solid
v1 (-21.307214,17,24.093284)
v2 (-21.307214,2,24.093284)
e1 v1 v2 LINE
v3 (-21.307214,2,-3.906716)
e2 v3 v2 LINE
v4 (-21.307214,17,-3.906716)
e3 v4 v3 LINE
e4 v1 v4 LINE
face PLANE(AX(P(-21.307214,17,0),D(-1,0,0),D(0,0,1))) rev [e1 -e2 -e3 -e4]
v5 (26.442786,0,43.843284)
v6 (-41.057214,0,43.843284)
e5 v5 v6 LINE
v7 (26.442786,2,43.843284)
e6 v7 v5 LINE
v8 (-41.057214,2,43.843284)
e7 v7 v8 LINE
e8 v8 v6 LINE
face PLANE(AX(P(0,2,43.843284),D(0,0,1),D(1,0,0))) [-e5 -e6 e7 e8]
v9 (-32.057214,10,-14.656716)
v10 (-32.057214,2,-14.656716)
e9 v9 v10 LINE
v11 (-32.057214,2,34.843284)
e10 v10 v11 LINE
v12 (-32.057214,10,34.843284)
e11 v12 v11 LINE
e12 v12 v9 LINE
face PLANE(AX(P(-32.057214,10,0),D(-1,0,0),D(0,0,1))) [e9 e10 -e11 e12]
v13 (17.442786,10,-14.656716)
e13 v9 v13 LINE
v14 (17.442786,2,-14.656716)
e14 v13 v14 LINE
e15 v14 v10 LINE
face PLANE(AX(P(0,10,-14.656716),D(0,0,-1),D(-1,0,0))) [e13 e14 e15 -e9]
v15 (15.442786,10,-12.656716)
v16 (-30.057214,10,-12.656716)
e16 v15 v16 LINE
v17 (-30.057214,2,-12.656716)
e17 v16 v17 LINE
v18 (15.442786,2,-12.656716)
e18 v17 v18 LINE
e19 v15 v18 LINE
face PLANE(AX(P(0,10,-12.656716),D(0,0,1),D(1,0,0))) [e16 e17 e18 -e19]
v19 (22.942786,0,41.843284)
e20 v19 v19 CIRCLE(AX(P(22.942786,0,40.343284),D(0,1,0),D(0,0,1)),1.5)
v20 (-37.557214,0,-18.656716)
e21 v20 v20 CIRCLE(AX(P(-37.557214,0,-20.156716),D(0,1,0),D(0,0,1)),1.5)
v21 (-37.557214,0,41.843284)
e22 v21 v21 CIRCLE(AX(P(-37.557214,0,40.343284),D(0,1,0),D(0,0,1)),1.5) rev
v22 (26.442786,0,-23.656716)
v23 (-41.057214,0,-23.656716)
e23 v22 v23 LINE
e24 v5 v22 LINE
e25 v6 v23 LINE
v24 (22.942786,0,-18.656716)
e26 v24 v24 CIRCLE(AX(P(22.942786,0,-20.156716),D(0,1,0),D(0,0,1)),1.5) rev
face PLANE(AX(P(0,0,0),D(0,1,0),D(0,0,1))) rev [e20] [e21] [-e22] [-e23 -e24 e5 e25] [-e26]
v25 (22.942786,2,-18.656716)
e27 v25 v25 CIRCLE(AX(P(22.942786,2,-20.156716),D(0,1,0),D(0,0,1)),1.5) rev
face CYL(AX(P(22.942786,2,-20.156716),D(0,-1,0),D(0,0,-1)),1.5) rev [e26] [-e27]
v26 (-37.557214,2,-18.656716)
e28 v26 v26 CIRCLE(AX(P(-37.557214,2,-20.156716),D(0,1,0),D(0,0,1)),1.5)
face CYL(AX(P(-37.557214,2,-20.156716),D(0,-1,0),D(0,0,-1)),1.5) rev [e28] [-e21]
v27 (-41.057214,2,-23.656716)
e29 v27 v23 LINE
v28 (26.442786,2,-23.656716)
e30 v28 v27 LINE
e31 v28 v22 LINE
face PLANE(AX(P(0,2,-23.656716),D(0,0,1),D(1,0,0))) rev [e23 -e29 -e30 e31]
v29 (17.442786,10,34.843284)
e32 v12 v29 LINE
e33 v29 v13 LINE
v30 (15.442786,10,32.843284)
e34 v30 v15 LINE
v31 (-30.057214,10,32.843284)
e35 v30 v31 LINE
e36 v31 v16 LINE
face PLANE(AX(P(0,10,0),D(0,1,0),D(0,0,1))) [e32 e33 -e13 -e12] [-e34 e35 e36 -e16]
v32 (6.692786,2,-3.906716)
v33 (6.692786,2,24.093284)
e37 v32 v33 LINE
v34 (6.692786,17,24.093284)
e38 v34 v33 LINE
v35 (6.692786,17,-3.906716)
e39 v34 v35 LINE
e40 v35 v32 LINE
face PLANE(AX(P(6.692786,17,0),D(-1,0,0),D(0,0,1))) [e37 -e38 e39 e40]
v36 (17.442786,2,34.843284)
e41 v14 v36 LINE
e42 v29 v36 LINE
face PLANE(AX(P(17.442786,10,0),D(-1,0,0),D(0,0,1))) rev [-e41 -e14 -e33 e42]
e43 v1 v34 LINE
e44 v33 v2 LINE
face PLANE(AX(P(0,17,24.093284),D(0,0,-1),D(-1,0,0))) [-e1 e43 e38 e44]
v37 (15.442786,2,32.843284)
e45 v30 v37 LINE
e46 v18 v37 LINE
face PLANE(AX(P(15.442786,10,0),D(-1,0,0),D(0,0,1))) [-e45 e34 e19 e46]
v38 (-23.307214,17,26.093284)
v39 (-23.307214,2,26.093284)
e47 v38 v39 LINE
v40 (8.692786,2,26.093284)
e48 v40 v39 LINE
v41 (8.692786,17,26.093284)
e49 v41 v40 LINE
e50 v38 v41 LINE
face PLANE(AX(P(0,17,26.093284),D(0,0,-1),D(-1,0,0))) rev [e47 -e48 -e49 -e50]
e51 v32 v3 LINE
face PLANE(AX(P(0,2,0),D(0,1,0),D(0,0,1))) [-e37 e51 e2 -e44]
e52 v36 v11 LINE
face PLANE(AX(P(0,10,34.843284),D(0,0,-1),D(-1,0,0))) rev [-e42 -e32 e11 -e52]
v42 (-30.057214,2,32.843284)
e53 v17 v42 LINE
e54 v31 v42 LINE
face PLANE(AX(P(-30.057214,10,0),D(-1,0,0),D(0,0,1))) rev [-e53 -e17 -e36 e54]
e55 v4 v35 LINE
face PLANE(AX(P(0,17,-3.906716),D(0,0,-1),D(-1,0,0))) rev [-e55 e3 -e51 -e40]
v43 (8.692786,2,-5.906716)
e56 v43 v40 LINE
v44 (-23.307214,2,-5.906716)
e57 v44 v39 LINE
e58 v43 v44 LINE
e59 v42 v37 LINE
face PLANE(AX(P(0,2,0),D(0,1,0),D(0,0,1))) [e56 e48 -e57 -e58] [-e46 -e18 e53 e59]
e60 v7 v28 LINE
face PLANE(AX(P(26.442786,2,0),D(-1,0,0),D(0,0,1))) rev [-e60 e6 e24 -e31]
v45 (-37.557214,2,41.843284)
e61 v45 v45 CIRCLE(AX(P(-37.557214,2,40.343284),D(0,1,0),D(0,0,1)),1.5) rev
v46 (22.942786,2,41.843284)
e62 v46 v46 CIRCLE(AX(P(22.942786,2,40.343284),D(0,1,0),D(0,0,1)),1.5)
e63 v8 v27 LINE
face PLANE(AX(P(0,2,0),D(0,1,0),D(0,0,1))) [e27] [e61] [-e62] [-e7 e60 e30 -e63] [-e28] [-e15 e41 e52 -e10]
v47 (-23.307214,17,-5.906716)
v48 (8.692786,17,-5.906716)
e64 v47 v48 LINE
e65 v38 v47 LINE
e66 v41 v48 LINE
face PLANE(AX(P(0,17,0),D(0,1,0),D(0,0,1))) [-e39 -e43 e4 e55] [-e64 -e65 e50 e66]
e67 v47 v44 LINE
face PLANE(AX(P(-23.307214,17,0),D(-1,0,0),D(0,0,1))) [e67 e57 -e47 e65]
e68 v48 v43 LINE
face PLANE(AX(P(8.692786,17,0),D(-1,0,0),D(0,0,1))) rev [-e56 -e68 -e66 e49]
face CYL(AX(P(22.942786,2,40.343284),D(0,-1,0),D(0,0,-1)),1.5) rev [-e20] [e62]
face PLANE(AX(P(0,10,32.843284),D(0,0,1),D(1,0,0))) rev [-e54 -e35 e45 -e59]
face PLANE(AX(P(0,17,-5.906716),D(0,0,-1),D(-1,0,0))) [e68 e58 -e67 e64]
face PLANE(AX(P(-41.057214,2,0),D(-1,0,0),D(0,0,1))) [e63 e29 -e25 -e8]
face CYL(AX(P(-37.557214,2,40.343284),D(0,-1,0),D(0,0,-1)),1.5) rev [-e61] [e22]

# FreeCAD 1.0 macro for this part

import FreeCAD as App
import Part
import Sketcher
from FreeCAD import Vector
Q = App.Units.Quantity


def add_polygon(sketch, points):
    """Adds a closed chain of lines whose ends are joined by coincident constraints."""
    first, n = sketch.GeometryCount, len(points)
    for a, b in zip(points, points[1:] + points[:1]):
        sketch.addGeometry(Part.LineSegment(App.Vector(*a, 0), App.Vector(*b, 0)), False)
    for i in range(n):
        sketch.addConstraint(Sketcher.Constraint("Coincident", first + i, 2, first + (i + 1) % n, 1))

doc = App.newDocument("Part")
body = doc.addObject("PartDesign::Body", "Body")

# Sketch on XZ plane
sketch1 = body.newObject("Sketcher::SketchObject", "Sketch")
sketch1.AttachmentSupport = (doc.getObject("XZ_Plane"), [""])
sketch1.MapMode = "FlatFace"
add_polygon(sketch1, [(-41.1, -23.7), (-41.1, 43.8), (26.4, 43.8), (26.4, -23.7)])  # lines 0-3
sketch1.addGeometry(Part.Circle(Vector(-37.6, 40.3, 0), Vector(0, 0, 1), 1.5), False)  # 4
sketch1.addGeometry(Part.Circle(Vector(22.9, 40.3, 0), Vector(0, 0, 1), 1.5), False)  # 5
sketch1.addGeometry(Part.Circle(Vector(-37.6, -20.2, 0), Vector(0, 0, 1), 1.5), False)  # 6
sketch1.addGeometry(Part.Circle(Vector(22.9, -20.2, 0), Vector(0, 0, 1), 1.5), False)  # 7
sketch1.addConstraint(Sketcher.Constraint("Vertical", 0))
sketch1.addConstraint(Sketcher.Constraint("Horizontal", 1))
sketch1.addConstraint(Sketcher.Constraint("Vertical", 2))
sketch1.addConstraint(Sketcher.Constraint("Horizontal", 3))
sketch1.addConstraint(Sketcher.Constraint("Equal", 4, 5))
sketch1.addConstraint(Sketcher.Constraint("Equal", 5, 6))
sketch1.addConstraint(Sketcher.Constraint("Equal", 6, 7))
sketch1.addConstraint(Sketcher.Constraint("Horizontal", 4, 3, 5, 3))
sketch1.addConstraint(Sketcher.Constraint("Horizontal", 6, 3, 7, 3))
sketch1.addConstraint(Sketcher.Constraint("Vertical", 4, 3, 6, 3))
sketch1.addConstraint(Sketcher.Constraint("Vertical", 5, 3, 7, 3))
sketch1.addConstraint(Sketcher.Constraint("Equal", 3, 0))
sketch1.addConstraint(Sketcher.Constraint("Diameter", 4, Q("3 mm")))
sketch1.addConstraint(Sketcher.Constraint("DistanceX", 1, 1, 1, 2, Q("67.5 mm")))
sketch1.addConstraint(Sketcher.Constraint("DistanceX", 0, 2, 5, 3, Q("64 mm")))
sketch1.addConstraint(Sketcher.Constraint("DistanceY", 6, 3, 0, 2, Q("64 mm")))
sketch1.addConstraint(Sketcher.Constraint("DistanceX", 4, 3, 1, 2, Q("64 mm")))
sketch1.addConstraint(Sketcher.Constraint("DistanceY", 2, 2, 5, 3, Q("64 mm")))
sketch1.addConstraint(Sketcher.Constraint("DistanceX", 4, 3, -1, 1, Q("37.557214 mm")))
sketch1.addConstraint(Sketcher.Constraint("DistanceY", -1, 1, 4, 3, Q("40.343284 mm")))
pad1 = body.newObject("PartDesign::Pad", "Pad")
pad1.Profile = sketch1
pad1.Length = 2
pad1.Reversed = True

# Sketch on XZ plane
sketch2 = body.newObject("Sketcher::SketchObject", "Sketch001")
sketch2.AttachmentSupport = (doc.getObject("XZ_Plane"), [""])
sketch2.MapMode = "FlatFace"
add_polygon(sketch2, [(-23, -6), (-23, 26), (9, 26), (9, -6)])  # lines 0-3
add_polygon(sketch2, [(7, 24), (-21, 24), (-21, -4), (7, -4)])  # lines 4-7
sketch2.addConstraint(Sketcher.Constraint("Vertical", 0))
sketch2.addConstraint(Sketcher.Constraint("Horizontal", 1))
sketch2.addConstraint(Sketcher.Constraint("Vertical", 2))
sketch2.addConstraint(Sketcher.Constraint("Horizontal", 3))
sketch2.addConstraint(Sketcher.Constraint("Horizontal", 4))
sketch2.addConstraint(Sketcher.Constraint("Vertical", 5))
sketch2.addConstraint(Sketcher.Constraint("Horizontal", 6))
sketch2.addConstraint(Sketcher.Constraint("Vertical", 7))
sketch2.addConstraint(Sketcher.Constraint("Equal", 3, 0))
sketch2.addConstraint(Sketcher.Constraint("Equal", 6, 5))
sketch2.addConstraint(Sketcher.Constraint("DistanceX", 1, 1, 1, 2, Q("32 mm")))
sketch2.addConstraint(Sketcher.Constraint("DistanceX", 4, 2, 4, 1, Q("28 mm")))
sketch2.addConstraint(Sketcher.Constraint("DistanceX", 0, 2, 4, 2, Q("2 mm")))
sketch2.addConstraint(Sketcher.Constraint("DistanceY", 4, 2, 0, 2, Q("2 mm")))
sketch2.addConstraint(Sketcher.Constraint("DistanceX", 0, 2, -1, 1, Q("23.307214 mm")))
sketch2.addConstraint(Sketcher.Constraint("DistanceY", -1, 1, 0, 2, Q("26.093284 mm")))
pad2 = body.newObject("PartDesign::Pad", "Pad001")
pad2.Profile = sketch2
pad2.Length = 17
pad2.Reversed = True

# Sketch on XZ plane
sketch3 = body.newObject("Sketcher::SketchObject", "Sketch002")
sketch3.AttachmentSupport = (doc.getObject("XZ_Plane"), [""])
sketch3.MapMode = "FlatFace"
add_polygon(sketch3, [(-32, -15), (-32, 35), (17, 35), (17, -15)])  # lines 0-3
add_polygon(sketch3, [(15, 33), (-30, 33), (-30, -13), (15, -13)])  # lines 4-7
sketch3.addConstraint(Sketcher.Constraint("Vertical", 0))
sketch3.addConstraint(Sketcher.Constraint("Horizontal", 1))
sketch3.addConstraint(Sketcher.Constraint("Vertical", 2))
sketch3.addConstraint(Sketcher.Constraint("Horizontal", 3))
sketch3.addConstraint(Sketcher.Constraint("Horizontal", 4))
sketch3.addConstraint(Sketcher.Constraint("Vertical", 5))
sketch3.addConstraint(Sketcher.Constraint("Horizontal", 6))
sketch3.addConstraint(Sketcher.Constraint("Vertical", 7))
sketch3.addConstraint(Sketcher.Constraint("Equal", 3, 0))
sketch3.addConstraint(Sketcher.Constraint("Equal", 6, 5))
sketch3.addConstraint(Sketcher.Constraint("DistanceX", 1, 1, 1, 2, Q("49.5 mm")))
sketch3.addConstraint(Sketcher.Constraint("DistanceX", 4, 2, 4, 1, Q("45.5 mm")))
sketch3.addConstraint(Sketcher.Constraint("DistanceX", 0, 2, 4, 2, Q("2 mm")))
sketch3.addConstraint(Sketcher.Constraint("DistanceY", 4, 2, 0, 2, Q("2 mm")))
sketch3.addConstraint(Sketcher.Constraint("DistanceX", 0, 2, -1, 1, Q("32.057214 mm")))
sketch3.addConstraint(Sketcher.Constraint("DistanceY", -1, 1, 0, 2, Q("34.843284 mm")))
pad3 = body.newObject("PartDesign::Pad", "Pad002")
pad3.Profile = sketch3
pad3.Length = 10
pad3.Reversed = True

doc.recompute()
